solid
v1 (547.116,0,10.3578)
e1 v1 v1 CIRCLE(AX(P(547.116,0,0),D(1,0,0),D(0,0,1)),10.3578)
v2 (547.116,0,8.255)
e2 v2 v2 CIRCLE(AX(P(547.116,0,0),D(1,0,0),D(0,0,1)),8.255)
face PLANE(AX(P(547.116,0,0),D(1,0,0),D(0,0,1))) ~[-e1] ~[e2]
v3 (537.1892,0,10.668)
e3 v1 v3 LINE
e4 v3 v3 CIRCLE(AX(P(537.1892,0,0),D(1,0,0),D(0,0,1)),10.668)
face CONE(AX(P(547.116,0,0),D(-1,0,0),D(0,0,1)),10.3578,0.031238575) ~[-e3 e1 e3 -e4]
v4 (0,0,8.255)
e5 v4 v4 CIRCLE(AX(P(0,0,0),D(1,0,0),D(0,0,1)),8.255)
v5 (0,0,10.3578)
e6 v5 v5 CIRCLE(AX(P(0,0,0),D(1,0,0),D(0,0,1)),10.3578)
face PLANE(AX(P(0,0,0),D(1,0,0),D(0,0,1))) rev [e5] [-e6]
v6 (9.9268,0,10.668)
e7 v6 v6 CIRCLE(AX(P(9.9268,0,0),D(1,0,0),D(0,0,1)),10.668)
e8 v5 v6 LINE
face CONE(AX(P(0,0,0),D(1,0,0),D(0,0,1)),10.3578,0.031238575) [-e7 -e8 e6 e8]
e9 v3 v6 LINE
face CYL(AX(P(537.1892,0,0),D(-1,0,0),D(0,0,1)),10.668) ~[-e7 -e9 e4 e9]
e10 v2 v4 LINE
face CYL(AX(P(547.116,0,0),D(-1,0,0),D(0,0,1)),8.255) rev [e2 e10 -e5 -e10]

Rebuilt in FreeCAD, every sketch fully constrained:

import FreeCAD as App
import Part
import Sketcher

V = App.Vector
Q = App.Units.Quantity


def add_polygon(sketch, points):
    """Adds a closed chain of lines whose ends are joined by coincident constraints."""
    first, n = sketch.GeometryCount, len(points)
    for a, b in zip(points, points[1:] + points[:1]):
        sketch.addGeometry(Part.LineSegment(App.Vector(*a, 0), App.Vector(*b, 0)), False)
    for i in range(n):
        sketch.addConstraint(Sketcher.Constraint("Coincident", first + i, 2, first + (i + 1) % n, 1))

doc = App.newDocument("Part")
body = doc.addObject("PartDesign::Body", "Body")

# Sketch on XZ plane
sketch1 = doc.addObject("Sketcher::SketchObject", "Sketch")
body.addObject(sketch1)
sketch1.AttachmentSupport = (doc.XZ_Plane, [""])
sketch1.MapMode = "FlatFace"
add_polygon(sketch1, [(547.1, 10.4), (547.1, 8.3), (0, 8.3), (0, 10.4), (9.9, 10.7), (537.2, 10.7)])  # lines 0-5
sketch1.addConstraint([
    Sketcher.Constraint("Vertical", 0),
    Sketcher.Constraint("Horizontal", 1),
    Sketcher.Constraint("Vertical", 2),
    Sketcher.Constraint("Horizontal", 4),
    Sketcher.Constraint("PointOnObject", 1, 2, -2),
    Sketcher.Constraint("Horizontal", 2, 2, 5, 2),
    Sketcher.Constraint("Equal", 3, 5),
    Sketcher.Constraint("DistanceX", 1, 2, 1, 1, Q("21.54 in")),
    Sketcher.Constraint("Angle", 3, Q("1.7898 deg")),
    Sketcher.Constraint("DistanceY", -1, 1, 3, 2, Q("0.42 in")),
    Sketcher.Constraint("Distance", 3, Q("0.391 in")),
    Sketcher.Constraint("DistanceY", -1, 1, 0, 2, Q("0.325 in")),
])
revolution = doc.addObject("PartDesign::Revolution", "Revolution")
body.addObject(revolution)
revolution.Profile = sketch1
revolution.ReferenceAxis = (sketch1, ["H_Axis"])
revolution.Angle = 360

doc.recompute()
